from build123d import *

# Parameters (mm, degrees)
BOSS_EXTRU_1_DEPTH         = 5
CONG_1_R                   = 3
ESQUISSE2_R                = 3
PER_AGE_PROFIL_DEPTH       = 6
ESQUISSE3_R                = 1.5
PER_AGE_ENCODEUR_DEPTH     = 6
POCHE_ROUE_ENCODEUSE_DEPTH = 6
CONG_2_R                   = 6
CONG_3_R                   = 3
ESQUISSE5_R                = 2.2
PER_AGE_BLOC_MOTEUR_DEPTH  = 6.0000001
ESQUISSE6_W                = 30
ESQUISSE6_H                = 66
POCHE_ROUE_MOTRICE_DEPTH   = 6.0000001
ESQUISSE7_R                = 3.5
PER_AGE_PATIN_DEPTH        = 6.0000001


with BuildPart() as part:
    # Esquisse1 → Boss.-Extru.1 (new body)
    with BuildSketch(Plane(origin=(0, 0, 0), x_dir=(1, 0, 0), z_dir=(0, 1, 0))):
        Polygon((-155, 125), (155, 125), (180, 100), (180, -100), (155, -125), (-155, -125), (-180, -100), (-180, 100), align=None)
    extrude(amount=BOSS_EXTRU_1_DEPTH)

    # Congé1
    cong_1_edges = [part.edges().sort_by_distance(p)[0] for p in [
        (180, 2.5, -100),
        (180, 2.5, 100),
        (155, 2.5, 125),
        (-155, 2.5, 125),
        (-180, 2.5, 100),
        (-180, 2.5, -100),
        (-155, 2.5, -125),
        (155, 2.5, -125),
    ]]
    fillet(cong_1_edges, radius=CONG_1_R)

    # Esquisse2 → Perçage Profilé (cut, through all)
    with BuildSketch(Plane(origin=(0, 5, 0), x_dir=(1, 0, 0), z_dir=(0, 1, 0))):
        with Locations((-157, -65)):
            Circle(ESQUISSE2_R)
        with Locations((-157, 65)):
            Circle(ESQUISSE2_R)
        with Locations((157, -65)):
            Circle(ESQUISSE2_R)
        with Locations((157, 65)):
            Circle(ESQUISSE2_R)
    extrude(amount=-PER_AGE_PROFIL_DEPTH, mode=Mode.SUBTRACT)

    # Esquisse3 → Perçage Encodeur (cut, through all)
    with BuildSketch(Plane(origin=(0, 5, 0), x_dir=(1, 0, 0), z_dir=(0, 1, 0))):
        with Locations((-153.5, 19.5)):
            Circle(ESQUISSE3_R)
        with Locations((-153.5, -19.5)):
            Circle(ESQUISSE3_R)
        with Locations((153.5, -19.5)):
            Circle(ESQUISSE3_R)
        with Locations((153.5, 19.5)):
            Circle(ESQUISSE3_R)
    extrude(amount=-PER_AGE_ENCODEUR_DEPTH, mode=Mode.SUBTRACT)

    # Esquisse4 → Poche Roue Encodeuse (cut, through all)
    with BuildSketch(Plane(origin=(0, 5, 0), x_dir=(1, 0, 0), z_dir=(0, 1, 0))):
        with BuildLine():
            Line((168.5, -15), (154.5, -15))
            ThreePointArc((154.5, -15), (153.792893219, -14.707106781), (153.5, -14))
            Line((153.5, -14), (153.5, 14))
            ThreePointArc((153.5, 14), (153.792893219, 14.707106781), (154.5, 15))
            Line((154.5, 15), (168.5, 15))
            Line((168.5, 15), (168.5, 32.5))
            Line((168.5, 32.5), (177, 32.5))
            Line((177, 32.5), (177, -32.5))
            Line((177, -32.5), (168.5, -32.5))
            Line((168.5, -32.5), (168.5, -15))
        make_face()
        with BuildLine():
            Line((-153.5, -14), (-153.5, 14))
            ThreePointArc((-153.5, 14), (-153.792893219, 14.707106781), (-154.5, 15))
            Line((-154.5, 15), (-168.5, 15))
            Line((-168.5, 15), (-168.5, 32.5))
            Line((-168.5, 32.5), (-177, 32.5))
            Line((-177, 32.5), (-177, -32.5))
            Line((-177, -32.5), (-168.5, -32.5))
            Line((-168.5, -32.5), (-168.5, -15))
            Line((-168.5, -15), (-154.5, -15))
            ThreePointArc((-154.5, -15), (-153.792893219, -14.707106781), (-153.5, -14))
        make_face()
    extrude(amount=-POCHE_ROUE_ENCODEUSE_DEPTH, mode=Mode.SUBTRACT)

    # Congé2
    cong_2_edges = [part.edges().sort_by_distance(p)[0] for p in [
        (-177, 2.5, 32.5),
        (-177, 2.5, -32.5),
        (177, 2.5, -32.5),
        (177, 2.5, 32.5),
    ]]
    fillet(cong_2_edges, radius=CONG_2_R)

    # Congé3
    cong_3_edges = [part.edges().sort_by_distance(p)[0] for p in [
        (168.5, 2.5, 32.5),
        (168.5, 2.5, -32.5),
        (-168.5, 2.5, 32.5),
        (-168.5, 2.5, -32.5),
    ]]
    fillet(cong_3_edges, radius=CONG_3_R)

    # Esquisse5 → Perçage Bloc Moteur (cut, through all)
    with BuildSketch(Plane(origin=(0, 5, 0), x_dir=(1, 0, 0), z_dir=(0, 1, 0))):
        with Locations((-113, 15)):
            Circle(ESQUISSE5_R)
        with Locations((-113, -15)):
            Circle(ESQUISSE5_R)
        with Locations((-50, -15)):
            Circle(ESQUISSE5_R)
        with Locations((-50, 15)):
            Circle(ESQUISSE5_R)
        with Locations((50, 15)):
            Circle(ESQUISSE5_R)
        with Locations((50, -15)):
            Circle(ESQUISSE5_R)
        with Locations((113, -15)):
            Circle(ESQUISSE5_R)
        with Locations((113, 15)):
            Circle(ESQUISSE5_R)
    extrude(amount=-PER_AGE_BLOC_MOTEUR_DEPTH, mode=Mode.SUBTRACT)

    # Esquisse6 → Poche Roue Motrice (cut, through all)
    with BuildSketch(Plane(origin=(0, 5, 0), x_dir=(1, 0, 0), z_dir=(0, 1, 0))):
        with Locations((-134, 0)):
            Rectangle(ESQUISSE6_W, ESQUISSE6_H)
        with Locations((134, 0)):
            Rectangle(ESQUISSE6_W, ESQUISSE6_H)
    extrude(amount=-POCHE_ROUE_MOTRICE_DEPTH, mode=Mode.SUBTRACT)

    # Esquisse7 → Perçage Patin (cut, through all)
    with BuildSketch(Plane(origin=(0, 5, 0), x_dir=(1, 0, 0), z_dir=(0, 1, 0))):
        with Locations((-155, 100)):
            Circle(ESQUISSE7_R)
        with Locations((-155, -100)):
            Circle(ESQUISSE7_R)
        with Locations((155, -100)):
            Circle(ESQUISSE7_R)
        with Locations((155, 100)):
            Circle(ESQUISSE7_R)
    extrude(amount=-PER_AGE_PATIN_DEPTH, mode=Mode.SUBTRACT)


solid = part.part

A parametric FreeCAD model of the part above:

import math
import FreeCAD as App
import Part
import Sketcher

V = App.Vector
Q = App.Units.Quantity


def edges_at(feature, points):
    """Names of the edges that pass closest to the given points."""
    edges = feature.Shape.Edges
    near = lambda p: min(range(len(edges)), key=lambda i: edges[i].distToShape(Part.Vertex(*p))[0])
    return sorted({f"Edge{near(p) + 1}" for p in points})

doc = App.newDocument("Part")
body = doc.addObject("PartDesign::Body", "Body")

sketch1 = body.newObject("Sketcher::SketchObject", "Sketch")
sketch1.AttachmentSupport = (doc.getObject("XZ_Plane"), [""])
sketch1.MapMode = "FlatFace"
sketch1.addGeometry(Part.LineSegment(V(155, -125, 0), V(-155, -125, 0)), False)
sketch1.addGeometry(Part.LineSegment(V(-155, -125, 0), V(-180, -100, 0)), False)
sketch1.addGeometry(Part.LineSegment(V(-180, -100, 0), V(-180, 100, 0)), False)
sketch1.addGeometry(Part.LineSegment(V(-180, 100, 0), V(-155, 125, 0)), False)
sketch1.addGeometry(Part.LineSegment(V(-155, 125, 0), V(155, 125, 0)), False)
sketch1.addGeometry(Part.LineSegment(V(155, 125, 0), V(180, 100, 0)), False)
sketch1.addGeometry(Part.LineSegment(V(180, 100, 0), V(180, -100, 0)), False)
sketch1.addGeometry(Part.LineSegment(V(180, -100, 0), V(155, -125, 0)), False)
sketch1.addConstraint(Sketcher.Constraint("Coincident", 0, 2, 1, 1))
sketch1.addConstraint(Sketcher.Constraint("Coincident", 1, 2, 2, 1))
sketch1.addConstraint(Sketcher.Constraint("Coincident", 2, 2, 3, 1))
sketch1.addConstraint(Sketcher.Constraint("Coincident", 3, 2, 4, 1))
sketch1.addConstraint(Sketcher.Constraint("Coincident", 4, 2, 5, 1))
sketch1.addConstraint(Sketcher.Constraint("Coincident", 5, 2, 6, 1))
sketch1.addConstraint(Sketcher.Constraint("Coincident", 6, 2, 7, 1))
sketch1.addConstraint(Sketcher.Constraint("Coincident", 7, 2, 0, 1))
sketch1.addConstraint(Sketcher.Constraint("Horizontal", 0))
sketch1.addConstraint(Sketcher.Constraint("Vertical", 2))
sketch1.addConstraint(Sketcher.Constraint("Horizontal", 4))
sketch1.addConstraint(Sketcher.Constraint("Vertical", 6))
sketch1.addConstraint(Sketcher.Constraint("Symmetric", 0, 2, 4, 2, -1, 1))
sketch1.addConstraint(Sketcher.Constraint("Symmetric", 1, 2, 5, 2, -1, 1))
sketch1.addConstraint(Sketcher.Constraint("Perpendicular", 1, 3))
sketch1.addConstraint(Sketcher.Constraint("Perpendicular", 5, 7))
sketch1.addConstraint(Sketcher.Constraint("Horizontal", 2, 2, 5, 2))
sketch1.addConstraint(Sketcher.Constraint("Horizontal", 1, 2, 6, 2))
sketch1.addConstraint(Sketcher.Constraint("Vertical", 0, 2, 3, 2))
sketch1.addConstraint(Sketcher.Constraint("DistanceX", 0, 2, 0, 1, Q("310 mm")))
sketch1.addConstraint(Sketcher.Constraint("DistanceY", 2, 1, 2, 2, Q("200 mm")))
sketch1.addConstraint(Sketcher.Constraint("DistanceY", 0, 2, -1, 1, Q("125 mm")))
pad1 = body.newObject("PartDesign::Pad", "Pad")
pad1.Profile = sketch1
pad1.Length = 5
pad1.Reversed = True
doc.recompute()

fillet = body.newObject("PartDesign::Fillet", "Fillet")
fillet.Base = (pad1, edges_at(pad1, [
    (180, 2.5, -100),
    (180, 2.5, 100),
    (155, 2.5, 125),
    (-155, 2.5, 125),
    (-180, 2.5, 100),
    (-180, 2.5, -100),
    (-155, 2.5, -125),
    (155, 2.5, -125),
]))
fillet.Radius = 3

sketch2 = body.newObject("Sketcher::SketchObject", "Sketch001")
sketch2.AttachmentSupport = (doc.getObject("XZ_Plane"), [""])
sketch2.MapMode = "FlatFace"
sketch2.AttachmentOffset = App.Placement(V(0, 0, -5), App.Rotation())
sketch2.addGeometry(Part.Circle(V(-157, 65, 0), V(0, 0, 1), 3), False)
sketch2.addGeometry(Part.Circle(V(-157, -65, 0), V(0, 0, 1), 3), False)
sketch2.addGeometry(Part.Circle(V(157, 65, 0), V(0, 0, 1), 3), False)
sketch2.addGeometry(Part.Circle(V(157, -65, 0), V(0, 0, 1), 3), False)
sketch2.addConstraint(Sketcher.Constraint("Equal", 0, 1))
sketch2.addConstraint(Sketcher.Constraint("Equal", 1, 2))
sketch2.addConstraint(Sketcher.Constraint("Equal", 2, 3))
sketch2.addConstraint(Sketcher.Constraint("Symmetric", 1, 3, 2, 3, -1, 1))
sketch2.addConstraint(Sketcher.Constraint("Symmetric", 0, 3, 3, 3, -1, 1))
sketch2.addConstraint(Sketcher.Constraint("Symmetric", 0, 3, 2, 3, -2))
sketch2.addConstraint(Sketcher.Constraint("Diameter", 0, Q("6 mm")))
sketch2.addConstraint(Sketcher.Constraint("DistanceX", 0, 3, -1, 1, Q("157 mm")))
sketch2.addConstraint(Sketcher.Constraint("DistanceY", -1, 1, 0, 3, Q("65 mm")))
pocket1 = body.newObject("PartDesign::Pocket", "Pocket")
pocket1.Profile = sketch2
pocket1.Type = "ThroughAll"
pocket1.Reversed = True

sketch3 = body.newObject("Sketcher::SketchObject", "Sketch002")
sketch3.AttachmentSupport = (doc.getObject("XZ_Plane"), [""])
sketch3.MapMode = "FlatFace"
sketch3.AttachmentOffset = App.Placement(V(0, 0, -5), App.Rotation())
sketch3.addGeometry(Part.Circle(V(-153.5, -19.5, 0), V(0, 0, 1), 1.5), False)
sketch3.addGeometry(Part.Circle(V(-153.5, 19.5, 0), V(0, 0, 1), 1.5), False)
sketch3.addGeometry(Part.Circle(V(153.5, 19.5, 0), V(0, 0, 1), 1.5), False)
sketch3.addGeometry(Part.Circle(V(153.5, -19.5, 0), V(0, 0, 1), 1.5), False)
sketch3.addConstraint(Sketcher.Constraint("Equal", 0, 1))
sketch3.addConstraint(Sketcher.Constraint("Equal", 1, 2))
sketch3.addConstraint(Sketcher.Constraint("Equal", 2, 3))
sketch3.addConstraint(Sketcher.Constraint("Symmetric", 0, 3, 2, 3, -1, 1))
sketch3.addConstraint(Sketcher.Constraint("Symmetric", 1, 3, 3, 3, -1, 1))
sketch3.addConstraint(Sketcher.Constraint("Symmetric", 1, 3, 2, 3, -2))
sketch3.addConstraint(Sketcher.Constraint("Diameter", 0, Q("3 mm")))
sketch3.addConstraint(Sketcher.Constraint("DistanceY", 0, 3, 1, 3, Q("39 mm")))
sketch3.addConstraint(Sketcher.Constraint("DistanceX", 1, 3, 2, 3, Q("307 mm")))
pocket2 = body.newObject("PartDesign::Pocket", "Pocket001")
pocket2.Profile = sketch3
pocket2.Type = "ThroughAll"
pocket2.Reversed = True

sketch4 = body.newObject("Sketcher::SketchObject", "Sketch003")
sketch4.AttachmentSupport = (doc.getObject("XZ_Plane"), [""])
sketch4.MapMode = "FlatFace"
sketch4.AttachmentOffset = App.Placement(V(0, 0, -5), App.Rotation())
sketch4.addGeometry(Part.LineSegment(V(154.5, 15, 0), V(168.5, 15, 0)), False)
sketch4.addGeometry(Part.LineSegment(V(168.5, 15, 0), V(168.5, 32.5, 0)), False)
sketch4.addGeometry(Part.LineSegment(V(168.5, 32.5, 0), V(177, 32.5, 0)), False)
sketch4.addGeometry(Part.LineSegment(V(177, 32.5, 0), V(177, -32.5, 0)), False)
sketch4.addGeometry(Part.LineSegment(V(177, -32.5, 0), V(168.5, -32.5, 0)), False)
sketch4.addGeometry(Part.LineSegment(V(168.5, -32.5, 0), V(168.5, -15, 0)), False)
sketch4.addGeometry(Part.LineSegment(V(168.5, -15, 0), V(154.5, -15, 0)), False)
sketch4.addGeometry(Part.ArcOfCircle(Part.Circle(V(154.5, -14, 0), V(0, 0, 1), 1), math.radians(-180), math.radians(-90)), False)
sketch4.addGeometry(Part.LineSegment(V(153.5, -14, 0), V(153.5, 14, 0)), False)
sketch4.addGeometry(Part.ArcOfCircle(Part.Circle(V(154.5, 14, 0), V(0, 0, 1), 1), math.radians(90), math.radians(180)), False)
sketch4.addGeometry(Part.LineSegment(V(-153.5, 14, 0), V(-153.5, -14, 0)), False)
sketch4.addGeometry(Part.ArcOfCircle(Part.Circle(V(-154.5, -14, 0), V(0, 0, 1), 1), math.radians(-90), math.radians(0)), False)
sketch4.addGeometry(Part.LineSegment(V(-154.5, -15, 0), V(-168.5, -15, 0)), False)
sketch4.addGeometry(Part.LineSegment(V(-168.5, -15, 0), V(-168.5, -32.5, 0)), False)
sketch4.addGeometry(Part.LineSegment(V(-168.5, -32.5, 0), V(-177, -32.5, 0)), False)
sketch4.addGeometry(Part.LineSegment(V(-177, -32.5, 0), V(-177, 32.5, 0)), False)
sketch4.addGeometry(Part.LineSegment(V(-177, 32.5, 0), V(-168.5, 32.5, 0)), False)
sketch4.addGeometry(Part.LineSegment(V(-168.5, 32.5, 0), V(-168.5, 15, 0)), False)
sketch4.addGeometry(Part.LineSegment(V(-168.5, 15, 0), V(-154.5, 15, 0)), False)
sketch4.addGeometry(Part.ArcOfCircle(Part.Circle(V(-154.5, 14, 0), V(0, 0, 1), 1), math.radians(0), math.radians(90)), False)
sketch4.addConstraint(Sketcher.Constraint("Coincident", 0, 2, 1, 1))
sketch4.addConstraint(Sketcher.Constraint("Coincident", 1, 2, 2, 1))
sketch4.addConstraint(Sketcher.Constraint("Coincident", 2, 2, 3, 1))
sketch4.addConstraint(Sketcher.Constraint("Coincident", 3, 2, 4, 1))
sketch4.addConstraint(Sketcher.Constraint("Coincident", 4, 2, 5, 1))
sketch4.addConstraint(Sketcher.Constraint("Coincident", 5, 2, 6, 1))
sketch4.addConstraint(Sketcher.Constraint("Tangent", 6, 2, 7, 2))
sketch4.addConstraint(Sketcher.Constraint("Tangent", 7, 1, 8, 1))
sketch4.addConstraint(Sketcher.Constraint("Tangent", 8, 2, 9, 2))
sketch4.addConstraint(Sketcher.Constraint("Tangent", 9, 1, 0, 1))
sketch4.addConstraint(Sketcher.Constraint("Tangent", 10, 2, 11, 2))
sketch4.addConstraint(Sketcher.Constraint("Tangent", 11, 1, 12, 1))
sketch4.addConstraint(Sketcher.Constraint("Coincident", 12, 2, 13, 1))
sketch4.addConstraint(Sketcher.Constraint("Coincident", 13, 2, 14, 1))
sketch4.addConstraint(Sketcher.Constraint("Coincident", 14, 2, 15, 1))
sketch4.addConstraint(Sketcher.Constraint("Coincident", 15, 2, 16, 1))
sketch4.addConstraint(Sketcher.Constraint("Coincident", 16, 2, 17, 1))
sketch4.addConstraint(Sketcher.Constraint("Coincident", 17, 2, 18, 1))
sketch4.addConstraint(Sketcher.Constraint("Tangent", 18, 2, 19, 2))
sketch4.addConstraint(Sketcher.Constraint("Tangent", 19, 1, 10, 1))
sketch4.addConstraint(Sketcher.Constraint("Horizontal", 0))
sketch4.addConstraint(Sketcher.Constraint("Vertical", 1))
sketch4.addConstraint(Sketcher.Constraint("Horizontal", 2))
sketch4.addConstraint(Sketcher.Constraint("Vertical", 3))
sketch4.addConstraint(Sketcher.Constraint("Horizontal", 4))
sketch4.addConstraint(Sketcher.Constraint("Vertical", 5))
sketch4.addConstraint(Sketcher.Constraint("Horizontal", 6))
sketch4.addConstraint(Sketcher.Constraint("Vertical", 8))
sketch4.addConstraint(Sketcher.Constraint("Vertical", 10))
sketch4.addConstraint(Sketcher.Constraint("Horizontal", 12))
sketch4.addConstraint(Sketcher.Constraint("Vertical", 13))
sketch4.addConstraint(Sketcher.Constraint("Horizontal", 14))
sketch4.addConstraint(Sketcher.Constraint("Vertical", 15))
sketch4.addConstraint(Sketcher.Constraint("Horizontal", 16))
sketch4.addConstraint(Sketcher.Constraint("Vertical", 17))
sketch4.addConstraint(Sketcher.Constraint("Horizontal", 18))
sketch4.addConstraint(Sketcher.Constraint("Equal", 7, 9))
sketch4.addConstraint(Sketcher.Constraint("Equal", 9, 11))
sketch4.addConstraint(Sketcher.Constraint("Equal", 11, 19))
sketch4.addConstraint(Sketcher.Constraint("Symmetric", 9, 3, 11, 3, -1, 1))
sketch4.addConstraint(Sketcher.Constraint("Symmetric", 1, 2, 13, 2, -1, 1))
sketch4.addConstraint(Sketcher.Constraint("Symmetric", 3, 2, 15, 2, -1, 1))
sketch4.addConstraint(Sketcher.Constraint("Symmetric", 5, 2, 17, 2, -1, 1))
sketch4.addConstraint(Sketcher.Constraint("Symmetric", 5, 2, 12, 2, -2))
sketch4.addConstraint(Sketcher.Constraint("Horizontal", 4, 2, 13, 2))
sketch4.addConstraint(Sketcher.Constraint("Radius", 7, Q("1 mm")))
sketch4.addConstraint(Sketcher.Constraint("DistanceX", 0, 1, 0, 2, Q("14 mm")))
sketch4.addConstraint(Sketcher.Constraint("DistanceY", 3, 2, 3, 1, Q("65 mm")))
sketch4.addConstraint(Sketcher.Constraint("DistanceY", 8, 1, 8, 2, Q("28 mm")))
sketch4.addConstraint(Sketcher.Constraint("DistanceX", 2, 1, 2, 2, Q("8.5 mm")))
sketch4.addConstraint(Sketcher.Constraint("DistanceX", -1, 1, 2, 2, Q("177 mm")))
pocket3 = body.newObject("PartDesign::Pocket", "Pocket002")
pocket3.Profile = sketch4
pocket3.Type = "ThroughAll"
pocket3.Reversed = True
doc.recompute()

fillet2 = body.newObject("PartDesign::Fillet", "Fillet001")
fillet2.Base = (pocket3, edges_at(pocket3, [
    (-177, 2.5, 32.5),
    (-177, 2.5, -32.5),
    (177, 2.5, -32.5),
    (177, 2.5, 32.5),
]))
fillet2.Radius = 6
doc.recompute()

fillet3 = body.newObject("PartDesign::Fillet", "Fillet002")
fillet3.Base = (fillet2, edges_at(fillet2, [
    (168.5, 2.5, 32.5),
    (168.5, 2.5, -32.5),
    (-168.5, 2.5, 32.5),
    (-168.5, 2.5, -32.5),
]))
fillet3.Radius = 3

sketch5 = body.newObject("Sketcher::SketchObject", "Sketch004")
sketch5.AttachmentSupport = (doc.getObject("XZ_Plane"), [""])
sketch5.MapMode = "FlatFace"
sketch5.AttachmentOffset = App.Placement(V(0, 0, -5), App.Rotation())
sketch5.addGeometry(Part.Circle(V(-113, -15, 0), V(0, 0, 1), 2.2), False)
sketch5.addGeometry(Part.Circle(V(-113, 15, 0), V(0, 0, 1), 2.2), False)
sketch5.addGeometry(Part.Circle(V(-50, 15, 0), V(0, 0, 1), 2.2), False)
sketch5.addGeometry(Part.Circle(V(-50, -15, 0), V(0, 0, 1), 2.2), False)
sketch5.addGeometry(Part.Circle(V(50, -15, 0), V(0, 0, 1), 2.2), False)
sketch5.addGeometry(Part.Circle(V(50, 15, 0), V(0, 0, 1), 2.2), False)
sketch5.addGeometry(Part.Circle(V(113, 15, 0), V(0, 0, 1), 2.2), False)
sketch5.addGeometry(Part.Circle(V(113, -15, 0), V(0, 0, 1), 2.2), False)
sketch5.addConstraint(Sketcher.Constraint("Equal", 0, 1))
sketch5.addConstraint(Sketcher.Constraint("Equal", 1, 2))
sketch5.addConstraint(Sketcher.Constraint("Equal", 2, 3))
sketch5.addConstraint(Sketcher.Constraint("Equal", 3, 4))
sketch5.addConstraint(Sketcher.Constraint("Equal", 4, 5))
sketch5.addConstraint(Sketcher.Constraint("Equal", 5, 6))
sketch5.addConstraint(Sketcher.Constraint("Equal", 6, 7))
sketch5.addConstraint(Sketcher.Constraint("Symmetric", 2, 3, 4, 3, -1, 1))
sketch5.addConstraint(Sketcher.Constraint("Symmetric", 3, 3, 5, 3, -1, 1))
sketch5.addConstraint(Sketcher.Constraint("Symmetric", 0, 3, 6, 3, -1, 1))
sketch5.addConstraint(Sketcher.Constraint("Symmetric", 1, 3, 7, 3, -1, 1))
sketch5.addConstraint(Sketcher.Constraint("Symmetric", 3, 3, 4, 3, -2))
sketch5.addConstraint(Sketcher.Constraint("Symmetric", 1, 3, 6, 3, -2))
sketch5.addConstraint(Sketcher.Constraint("Horizontal", 1, 3, 2, 3))
sketch5.addConstraint(Sketcher.Constraint("Diameter", 0, Q("4.4 mm")))
sketch5.addConstraint(Sketcher.Constraint("DistanceX", 0, 3, -1, 1, Q("113 mm")))
sketch5.addConstraint(Sketcher.Constraint("DistanceY", 0, 3, -1, 1, Q("15 mm")))
sketch5.addConstraint(Sketcher.Constraint("DistanceX", 2, 3, -1, 1, Q("50 mm")))
pocket4 = body.newObject("PartDesign::Pocket", "Pocket003")
pocket4.Profile = sketch5
pocket4.Type = "ThroughAll"
pocket4.Reversed = True

sketch6 = body.newObject("Sketcher::SketchObject", "Sketch005")
sketch6.AttachmentSupport = (doc.getObject("XZ_Plane"), [""])
sketch6.MapMode = "FlatFace"
sketch6.AttachmentOffset = App.Placement(V(0, 0, -5), App.Rotation())
sketch6.addGeometry(Part.LineSegment(V(-149, -33, 0), V(-149, 33, 0)), False)
sketch6.addGeometry(Part.LineSegment(V(-149, 33, 0), V(-119, 33, 0)), False)
sketch6.addGeometry(Part.LineSegment(V(-119, 33, 0), V(-119, -33, 0)), False)
sketch6.addGeometry(Part.LineSegment(V(-119, -33, 0), V(-149, -33, 0)), False)
sketch6.addGeometry(Part.LineSegment(V(119, -33, 0), V(119, 33, 0)), False)
sketch6.addGeometry(Part.LineSegment(V(119, 33, 0), V(149, 33, 0)), False)
sketch6.addGeometry(Part.LineSegment(V(149, 33, 0), V(149, -33, 0)), False)
sketch6.addGeometry(Part.LineSegment(V(149, -33, 0), V(119, -33, 0)), False)
sketch6.addConstraint(Sketcher.Constraint("Coincident", 0, 2, 1, 1))
sketch6.addConstraint(Sketcher.Constraint("Coincident", 1, 2, 2, 1))
sketch6.addConstraint(Sketcher.Constraint("Coincident", 2, 2, 3, 1))
sketch6.addConstraint(Sketcher.Constraint("Coincident", 3, 2, 0, 1))
sketch6.addConstraint(Sketcher.Constraint("Coincident", 4, 2, 5, 1))
sketch6.addConstraint(Sketcher.Constraint("Coincident", 5, 2, 6, 1))
sketch6.addConstraint(Sketcher.Constraint("Coincident", 6, 2, 7, 1))
sketch6.addConstraint(Sketcher.Constraint("Coincident", 7, 2, 4, 1))
sketch6.addConstraint(Sketcher.Constraint("Vertical", 0))
sketch6.addConstraint(Sketcher.Constraint("Horizontal", 1))
sketch6.addConstraint(Sketcher.Constraint("Vertical", 2))
sketch6.addConstraint(Sketcher.Constraint("Horizontal", 3))
sketch6.addConstraint(Sketcher.Constraint("Vertical", 4))
sketch6.addConstraint(Sketcher.Constraint("Horizontal", 5))
sketch6.addConstraint(Sketcher.Constraint("Vertical", 6))
sketch6.addConstraint(Sketcher.Constraint("Horizontal", 7))
sketch6.addConstraint(Sketcher.Constraint("Symmetric", 2, 2, 4, 2, -1, 1))
sketch6.addConstraint(Sketcher.Constraint("Symmetric", 0, 2, 6, 2, -1, 1))
sketch6.addConstraint(Sketcher.Constraint("Horizontal", 1, 2, 4, 2))
sketch6.addConstraint(Sketcher.Constraint("DistanceX", 1, 1, 1, 2, Q("30 mm")))
sketch6.addConstraint(Sketcher.Constraint("DistanceY", 0, 1, 0, 2, Q("66 mm")))
sketch6.addConstraint(Sketcher.Constraint("DistanceX", 0, 2, -1, 1, Q("149 mm")))
pocket5 = body.newObject("PartDesign::Pocket", "Pocket004")
pocket5.Profile = sketch6
pocket5.Type = "ThroughAll"
pocket5.Reversed = True

sketch7 = body.newObject("Sketcher::SketchObject", "Sketch006")
sketch7.AttachmentSupport = (doc.getObject("XZ_Plane"), [""])
sketch7.MapMode = "FlatFace"
sketch7.AttachmentOffset = App.Placement(V(0, 0, -5), App.Rotation())
sketch7.addGeometry(Part.Circle(V(-155, -100, 0), V(0, 0, 1), 3.5), False)
sketch7.addGeometry(Part.Circle(V(-155, 100, 0), V(0, 0, 1), 3.5), False)
sketch7.addGeometry(Part.Circle(V(155, 100, 0), V(0, 0, 1), 3.5), False)
sketch7.addGeometry(Part.Circle(V(155, -100, 0), V(0, 0, 1), 3.5), False)
sketch7.addConstraint(Sketcher.Constraint("Equal", 0, 1))
sketch7.addConstraint(Sketcher.Constraint("Equal", 1, 2))
sketch7.addConstraint(Sketcher.Constraint("Equal", 2, 3))
sketch7.addConstraint(Sketcher.Constraint("Symmetric", 0, 3, 2, 3, -1, 1))
sketch7.addConstraint(Sketcher.Constraint("Symmetric", 1, 3, 3, 3, -1, 1))
sketch7.addConstraint(Sketcher.Constraint("Symmetric", 1, 3, 2, 3, -2))
sketch7.addConstraint(Sketcher.Constraint("Diameter", 0, Q("7 mm")))
sketch7.addConstraint(Sketcher.Constraint("DistanceX", 0, 3, -1, 1, Q("155 mm")))
sketch7.addConstraint(Sketcher.Constraint("DistanceY", 0, 3, -1, 1, Q("100 mm")))
pocket6 = body.newObject("PartDesign::Pocket", "Pocket005")
pocket6.Profile = sketch7
pocket6.Type = "ThroughAll"
pocket6.Reversed = True

doc.recompute()
